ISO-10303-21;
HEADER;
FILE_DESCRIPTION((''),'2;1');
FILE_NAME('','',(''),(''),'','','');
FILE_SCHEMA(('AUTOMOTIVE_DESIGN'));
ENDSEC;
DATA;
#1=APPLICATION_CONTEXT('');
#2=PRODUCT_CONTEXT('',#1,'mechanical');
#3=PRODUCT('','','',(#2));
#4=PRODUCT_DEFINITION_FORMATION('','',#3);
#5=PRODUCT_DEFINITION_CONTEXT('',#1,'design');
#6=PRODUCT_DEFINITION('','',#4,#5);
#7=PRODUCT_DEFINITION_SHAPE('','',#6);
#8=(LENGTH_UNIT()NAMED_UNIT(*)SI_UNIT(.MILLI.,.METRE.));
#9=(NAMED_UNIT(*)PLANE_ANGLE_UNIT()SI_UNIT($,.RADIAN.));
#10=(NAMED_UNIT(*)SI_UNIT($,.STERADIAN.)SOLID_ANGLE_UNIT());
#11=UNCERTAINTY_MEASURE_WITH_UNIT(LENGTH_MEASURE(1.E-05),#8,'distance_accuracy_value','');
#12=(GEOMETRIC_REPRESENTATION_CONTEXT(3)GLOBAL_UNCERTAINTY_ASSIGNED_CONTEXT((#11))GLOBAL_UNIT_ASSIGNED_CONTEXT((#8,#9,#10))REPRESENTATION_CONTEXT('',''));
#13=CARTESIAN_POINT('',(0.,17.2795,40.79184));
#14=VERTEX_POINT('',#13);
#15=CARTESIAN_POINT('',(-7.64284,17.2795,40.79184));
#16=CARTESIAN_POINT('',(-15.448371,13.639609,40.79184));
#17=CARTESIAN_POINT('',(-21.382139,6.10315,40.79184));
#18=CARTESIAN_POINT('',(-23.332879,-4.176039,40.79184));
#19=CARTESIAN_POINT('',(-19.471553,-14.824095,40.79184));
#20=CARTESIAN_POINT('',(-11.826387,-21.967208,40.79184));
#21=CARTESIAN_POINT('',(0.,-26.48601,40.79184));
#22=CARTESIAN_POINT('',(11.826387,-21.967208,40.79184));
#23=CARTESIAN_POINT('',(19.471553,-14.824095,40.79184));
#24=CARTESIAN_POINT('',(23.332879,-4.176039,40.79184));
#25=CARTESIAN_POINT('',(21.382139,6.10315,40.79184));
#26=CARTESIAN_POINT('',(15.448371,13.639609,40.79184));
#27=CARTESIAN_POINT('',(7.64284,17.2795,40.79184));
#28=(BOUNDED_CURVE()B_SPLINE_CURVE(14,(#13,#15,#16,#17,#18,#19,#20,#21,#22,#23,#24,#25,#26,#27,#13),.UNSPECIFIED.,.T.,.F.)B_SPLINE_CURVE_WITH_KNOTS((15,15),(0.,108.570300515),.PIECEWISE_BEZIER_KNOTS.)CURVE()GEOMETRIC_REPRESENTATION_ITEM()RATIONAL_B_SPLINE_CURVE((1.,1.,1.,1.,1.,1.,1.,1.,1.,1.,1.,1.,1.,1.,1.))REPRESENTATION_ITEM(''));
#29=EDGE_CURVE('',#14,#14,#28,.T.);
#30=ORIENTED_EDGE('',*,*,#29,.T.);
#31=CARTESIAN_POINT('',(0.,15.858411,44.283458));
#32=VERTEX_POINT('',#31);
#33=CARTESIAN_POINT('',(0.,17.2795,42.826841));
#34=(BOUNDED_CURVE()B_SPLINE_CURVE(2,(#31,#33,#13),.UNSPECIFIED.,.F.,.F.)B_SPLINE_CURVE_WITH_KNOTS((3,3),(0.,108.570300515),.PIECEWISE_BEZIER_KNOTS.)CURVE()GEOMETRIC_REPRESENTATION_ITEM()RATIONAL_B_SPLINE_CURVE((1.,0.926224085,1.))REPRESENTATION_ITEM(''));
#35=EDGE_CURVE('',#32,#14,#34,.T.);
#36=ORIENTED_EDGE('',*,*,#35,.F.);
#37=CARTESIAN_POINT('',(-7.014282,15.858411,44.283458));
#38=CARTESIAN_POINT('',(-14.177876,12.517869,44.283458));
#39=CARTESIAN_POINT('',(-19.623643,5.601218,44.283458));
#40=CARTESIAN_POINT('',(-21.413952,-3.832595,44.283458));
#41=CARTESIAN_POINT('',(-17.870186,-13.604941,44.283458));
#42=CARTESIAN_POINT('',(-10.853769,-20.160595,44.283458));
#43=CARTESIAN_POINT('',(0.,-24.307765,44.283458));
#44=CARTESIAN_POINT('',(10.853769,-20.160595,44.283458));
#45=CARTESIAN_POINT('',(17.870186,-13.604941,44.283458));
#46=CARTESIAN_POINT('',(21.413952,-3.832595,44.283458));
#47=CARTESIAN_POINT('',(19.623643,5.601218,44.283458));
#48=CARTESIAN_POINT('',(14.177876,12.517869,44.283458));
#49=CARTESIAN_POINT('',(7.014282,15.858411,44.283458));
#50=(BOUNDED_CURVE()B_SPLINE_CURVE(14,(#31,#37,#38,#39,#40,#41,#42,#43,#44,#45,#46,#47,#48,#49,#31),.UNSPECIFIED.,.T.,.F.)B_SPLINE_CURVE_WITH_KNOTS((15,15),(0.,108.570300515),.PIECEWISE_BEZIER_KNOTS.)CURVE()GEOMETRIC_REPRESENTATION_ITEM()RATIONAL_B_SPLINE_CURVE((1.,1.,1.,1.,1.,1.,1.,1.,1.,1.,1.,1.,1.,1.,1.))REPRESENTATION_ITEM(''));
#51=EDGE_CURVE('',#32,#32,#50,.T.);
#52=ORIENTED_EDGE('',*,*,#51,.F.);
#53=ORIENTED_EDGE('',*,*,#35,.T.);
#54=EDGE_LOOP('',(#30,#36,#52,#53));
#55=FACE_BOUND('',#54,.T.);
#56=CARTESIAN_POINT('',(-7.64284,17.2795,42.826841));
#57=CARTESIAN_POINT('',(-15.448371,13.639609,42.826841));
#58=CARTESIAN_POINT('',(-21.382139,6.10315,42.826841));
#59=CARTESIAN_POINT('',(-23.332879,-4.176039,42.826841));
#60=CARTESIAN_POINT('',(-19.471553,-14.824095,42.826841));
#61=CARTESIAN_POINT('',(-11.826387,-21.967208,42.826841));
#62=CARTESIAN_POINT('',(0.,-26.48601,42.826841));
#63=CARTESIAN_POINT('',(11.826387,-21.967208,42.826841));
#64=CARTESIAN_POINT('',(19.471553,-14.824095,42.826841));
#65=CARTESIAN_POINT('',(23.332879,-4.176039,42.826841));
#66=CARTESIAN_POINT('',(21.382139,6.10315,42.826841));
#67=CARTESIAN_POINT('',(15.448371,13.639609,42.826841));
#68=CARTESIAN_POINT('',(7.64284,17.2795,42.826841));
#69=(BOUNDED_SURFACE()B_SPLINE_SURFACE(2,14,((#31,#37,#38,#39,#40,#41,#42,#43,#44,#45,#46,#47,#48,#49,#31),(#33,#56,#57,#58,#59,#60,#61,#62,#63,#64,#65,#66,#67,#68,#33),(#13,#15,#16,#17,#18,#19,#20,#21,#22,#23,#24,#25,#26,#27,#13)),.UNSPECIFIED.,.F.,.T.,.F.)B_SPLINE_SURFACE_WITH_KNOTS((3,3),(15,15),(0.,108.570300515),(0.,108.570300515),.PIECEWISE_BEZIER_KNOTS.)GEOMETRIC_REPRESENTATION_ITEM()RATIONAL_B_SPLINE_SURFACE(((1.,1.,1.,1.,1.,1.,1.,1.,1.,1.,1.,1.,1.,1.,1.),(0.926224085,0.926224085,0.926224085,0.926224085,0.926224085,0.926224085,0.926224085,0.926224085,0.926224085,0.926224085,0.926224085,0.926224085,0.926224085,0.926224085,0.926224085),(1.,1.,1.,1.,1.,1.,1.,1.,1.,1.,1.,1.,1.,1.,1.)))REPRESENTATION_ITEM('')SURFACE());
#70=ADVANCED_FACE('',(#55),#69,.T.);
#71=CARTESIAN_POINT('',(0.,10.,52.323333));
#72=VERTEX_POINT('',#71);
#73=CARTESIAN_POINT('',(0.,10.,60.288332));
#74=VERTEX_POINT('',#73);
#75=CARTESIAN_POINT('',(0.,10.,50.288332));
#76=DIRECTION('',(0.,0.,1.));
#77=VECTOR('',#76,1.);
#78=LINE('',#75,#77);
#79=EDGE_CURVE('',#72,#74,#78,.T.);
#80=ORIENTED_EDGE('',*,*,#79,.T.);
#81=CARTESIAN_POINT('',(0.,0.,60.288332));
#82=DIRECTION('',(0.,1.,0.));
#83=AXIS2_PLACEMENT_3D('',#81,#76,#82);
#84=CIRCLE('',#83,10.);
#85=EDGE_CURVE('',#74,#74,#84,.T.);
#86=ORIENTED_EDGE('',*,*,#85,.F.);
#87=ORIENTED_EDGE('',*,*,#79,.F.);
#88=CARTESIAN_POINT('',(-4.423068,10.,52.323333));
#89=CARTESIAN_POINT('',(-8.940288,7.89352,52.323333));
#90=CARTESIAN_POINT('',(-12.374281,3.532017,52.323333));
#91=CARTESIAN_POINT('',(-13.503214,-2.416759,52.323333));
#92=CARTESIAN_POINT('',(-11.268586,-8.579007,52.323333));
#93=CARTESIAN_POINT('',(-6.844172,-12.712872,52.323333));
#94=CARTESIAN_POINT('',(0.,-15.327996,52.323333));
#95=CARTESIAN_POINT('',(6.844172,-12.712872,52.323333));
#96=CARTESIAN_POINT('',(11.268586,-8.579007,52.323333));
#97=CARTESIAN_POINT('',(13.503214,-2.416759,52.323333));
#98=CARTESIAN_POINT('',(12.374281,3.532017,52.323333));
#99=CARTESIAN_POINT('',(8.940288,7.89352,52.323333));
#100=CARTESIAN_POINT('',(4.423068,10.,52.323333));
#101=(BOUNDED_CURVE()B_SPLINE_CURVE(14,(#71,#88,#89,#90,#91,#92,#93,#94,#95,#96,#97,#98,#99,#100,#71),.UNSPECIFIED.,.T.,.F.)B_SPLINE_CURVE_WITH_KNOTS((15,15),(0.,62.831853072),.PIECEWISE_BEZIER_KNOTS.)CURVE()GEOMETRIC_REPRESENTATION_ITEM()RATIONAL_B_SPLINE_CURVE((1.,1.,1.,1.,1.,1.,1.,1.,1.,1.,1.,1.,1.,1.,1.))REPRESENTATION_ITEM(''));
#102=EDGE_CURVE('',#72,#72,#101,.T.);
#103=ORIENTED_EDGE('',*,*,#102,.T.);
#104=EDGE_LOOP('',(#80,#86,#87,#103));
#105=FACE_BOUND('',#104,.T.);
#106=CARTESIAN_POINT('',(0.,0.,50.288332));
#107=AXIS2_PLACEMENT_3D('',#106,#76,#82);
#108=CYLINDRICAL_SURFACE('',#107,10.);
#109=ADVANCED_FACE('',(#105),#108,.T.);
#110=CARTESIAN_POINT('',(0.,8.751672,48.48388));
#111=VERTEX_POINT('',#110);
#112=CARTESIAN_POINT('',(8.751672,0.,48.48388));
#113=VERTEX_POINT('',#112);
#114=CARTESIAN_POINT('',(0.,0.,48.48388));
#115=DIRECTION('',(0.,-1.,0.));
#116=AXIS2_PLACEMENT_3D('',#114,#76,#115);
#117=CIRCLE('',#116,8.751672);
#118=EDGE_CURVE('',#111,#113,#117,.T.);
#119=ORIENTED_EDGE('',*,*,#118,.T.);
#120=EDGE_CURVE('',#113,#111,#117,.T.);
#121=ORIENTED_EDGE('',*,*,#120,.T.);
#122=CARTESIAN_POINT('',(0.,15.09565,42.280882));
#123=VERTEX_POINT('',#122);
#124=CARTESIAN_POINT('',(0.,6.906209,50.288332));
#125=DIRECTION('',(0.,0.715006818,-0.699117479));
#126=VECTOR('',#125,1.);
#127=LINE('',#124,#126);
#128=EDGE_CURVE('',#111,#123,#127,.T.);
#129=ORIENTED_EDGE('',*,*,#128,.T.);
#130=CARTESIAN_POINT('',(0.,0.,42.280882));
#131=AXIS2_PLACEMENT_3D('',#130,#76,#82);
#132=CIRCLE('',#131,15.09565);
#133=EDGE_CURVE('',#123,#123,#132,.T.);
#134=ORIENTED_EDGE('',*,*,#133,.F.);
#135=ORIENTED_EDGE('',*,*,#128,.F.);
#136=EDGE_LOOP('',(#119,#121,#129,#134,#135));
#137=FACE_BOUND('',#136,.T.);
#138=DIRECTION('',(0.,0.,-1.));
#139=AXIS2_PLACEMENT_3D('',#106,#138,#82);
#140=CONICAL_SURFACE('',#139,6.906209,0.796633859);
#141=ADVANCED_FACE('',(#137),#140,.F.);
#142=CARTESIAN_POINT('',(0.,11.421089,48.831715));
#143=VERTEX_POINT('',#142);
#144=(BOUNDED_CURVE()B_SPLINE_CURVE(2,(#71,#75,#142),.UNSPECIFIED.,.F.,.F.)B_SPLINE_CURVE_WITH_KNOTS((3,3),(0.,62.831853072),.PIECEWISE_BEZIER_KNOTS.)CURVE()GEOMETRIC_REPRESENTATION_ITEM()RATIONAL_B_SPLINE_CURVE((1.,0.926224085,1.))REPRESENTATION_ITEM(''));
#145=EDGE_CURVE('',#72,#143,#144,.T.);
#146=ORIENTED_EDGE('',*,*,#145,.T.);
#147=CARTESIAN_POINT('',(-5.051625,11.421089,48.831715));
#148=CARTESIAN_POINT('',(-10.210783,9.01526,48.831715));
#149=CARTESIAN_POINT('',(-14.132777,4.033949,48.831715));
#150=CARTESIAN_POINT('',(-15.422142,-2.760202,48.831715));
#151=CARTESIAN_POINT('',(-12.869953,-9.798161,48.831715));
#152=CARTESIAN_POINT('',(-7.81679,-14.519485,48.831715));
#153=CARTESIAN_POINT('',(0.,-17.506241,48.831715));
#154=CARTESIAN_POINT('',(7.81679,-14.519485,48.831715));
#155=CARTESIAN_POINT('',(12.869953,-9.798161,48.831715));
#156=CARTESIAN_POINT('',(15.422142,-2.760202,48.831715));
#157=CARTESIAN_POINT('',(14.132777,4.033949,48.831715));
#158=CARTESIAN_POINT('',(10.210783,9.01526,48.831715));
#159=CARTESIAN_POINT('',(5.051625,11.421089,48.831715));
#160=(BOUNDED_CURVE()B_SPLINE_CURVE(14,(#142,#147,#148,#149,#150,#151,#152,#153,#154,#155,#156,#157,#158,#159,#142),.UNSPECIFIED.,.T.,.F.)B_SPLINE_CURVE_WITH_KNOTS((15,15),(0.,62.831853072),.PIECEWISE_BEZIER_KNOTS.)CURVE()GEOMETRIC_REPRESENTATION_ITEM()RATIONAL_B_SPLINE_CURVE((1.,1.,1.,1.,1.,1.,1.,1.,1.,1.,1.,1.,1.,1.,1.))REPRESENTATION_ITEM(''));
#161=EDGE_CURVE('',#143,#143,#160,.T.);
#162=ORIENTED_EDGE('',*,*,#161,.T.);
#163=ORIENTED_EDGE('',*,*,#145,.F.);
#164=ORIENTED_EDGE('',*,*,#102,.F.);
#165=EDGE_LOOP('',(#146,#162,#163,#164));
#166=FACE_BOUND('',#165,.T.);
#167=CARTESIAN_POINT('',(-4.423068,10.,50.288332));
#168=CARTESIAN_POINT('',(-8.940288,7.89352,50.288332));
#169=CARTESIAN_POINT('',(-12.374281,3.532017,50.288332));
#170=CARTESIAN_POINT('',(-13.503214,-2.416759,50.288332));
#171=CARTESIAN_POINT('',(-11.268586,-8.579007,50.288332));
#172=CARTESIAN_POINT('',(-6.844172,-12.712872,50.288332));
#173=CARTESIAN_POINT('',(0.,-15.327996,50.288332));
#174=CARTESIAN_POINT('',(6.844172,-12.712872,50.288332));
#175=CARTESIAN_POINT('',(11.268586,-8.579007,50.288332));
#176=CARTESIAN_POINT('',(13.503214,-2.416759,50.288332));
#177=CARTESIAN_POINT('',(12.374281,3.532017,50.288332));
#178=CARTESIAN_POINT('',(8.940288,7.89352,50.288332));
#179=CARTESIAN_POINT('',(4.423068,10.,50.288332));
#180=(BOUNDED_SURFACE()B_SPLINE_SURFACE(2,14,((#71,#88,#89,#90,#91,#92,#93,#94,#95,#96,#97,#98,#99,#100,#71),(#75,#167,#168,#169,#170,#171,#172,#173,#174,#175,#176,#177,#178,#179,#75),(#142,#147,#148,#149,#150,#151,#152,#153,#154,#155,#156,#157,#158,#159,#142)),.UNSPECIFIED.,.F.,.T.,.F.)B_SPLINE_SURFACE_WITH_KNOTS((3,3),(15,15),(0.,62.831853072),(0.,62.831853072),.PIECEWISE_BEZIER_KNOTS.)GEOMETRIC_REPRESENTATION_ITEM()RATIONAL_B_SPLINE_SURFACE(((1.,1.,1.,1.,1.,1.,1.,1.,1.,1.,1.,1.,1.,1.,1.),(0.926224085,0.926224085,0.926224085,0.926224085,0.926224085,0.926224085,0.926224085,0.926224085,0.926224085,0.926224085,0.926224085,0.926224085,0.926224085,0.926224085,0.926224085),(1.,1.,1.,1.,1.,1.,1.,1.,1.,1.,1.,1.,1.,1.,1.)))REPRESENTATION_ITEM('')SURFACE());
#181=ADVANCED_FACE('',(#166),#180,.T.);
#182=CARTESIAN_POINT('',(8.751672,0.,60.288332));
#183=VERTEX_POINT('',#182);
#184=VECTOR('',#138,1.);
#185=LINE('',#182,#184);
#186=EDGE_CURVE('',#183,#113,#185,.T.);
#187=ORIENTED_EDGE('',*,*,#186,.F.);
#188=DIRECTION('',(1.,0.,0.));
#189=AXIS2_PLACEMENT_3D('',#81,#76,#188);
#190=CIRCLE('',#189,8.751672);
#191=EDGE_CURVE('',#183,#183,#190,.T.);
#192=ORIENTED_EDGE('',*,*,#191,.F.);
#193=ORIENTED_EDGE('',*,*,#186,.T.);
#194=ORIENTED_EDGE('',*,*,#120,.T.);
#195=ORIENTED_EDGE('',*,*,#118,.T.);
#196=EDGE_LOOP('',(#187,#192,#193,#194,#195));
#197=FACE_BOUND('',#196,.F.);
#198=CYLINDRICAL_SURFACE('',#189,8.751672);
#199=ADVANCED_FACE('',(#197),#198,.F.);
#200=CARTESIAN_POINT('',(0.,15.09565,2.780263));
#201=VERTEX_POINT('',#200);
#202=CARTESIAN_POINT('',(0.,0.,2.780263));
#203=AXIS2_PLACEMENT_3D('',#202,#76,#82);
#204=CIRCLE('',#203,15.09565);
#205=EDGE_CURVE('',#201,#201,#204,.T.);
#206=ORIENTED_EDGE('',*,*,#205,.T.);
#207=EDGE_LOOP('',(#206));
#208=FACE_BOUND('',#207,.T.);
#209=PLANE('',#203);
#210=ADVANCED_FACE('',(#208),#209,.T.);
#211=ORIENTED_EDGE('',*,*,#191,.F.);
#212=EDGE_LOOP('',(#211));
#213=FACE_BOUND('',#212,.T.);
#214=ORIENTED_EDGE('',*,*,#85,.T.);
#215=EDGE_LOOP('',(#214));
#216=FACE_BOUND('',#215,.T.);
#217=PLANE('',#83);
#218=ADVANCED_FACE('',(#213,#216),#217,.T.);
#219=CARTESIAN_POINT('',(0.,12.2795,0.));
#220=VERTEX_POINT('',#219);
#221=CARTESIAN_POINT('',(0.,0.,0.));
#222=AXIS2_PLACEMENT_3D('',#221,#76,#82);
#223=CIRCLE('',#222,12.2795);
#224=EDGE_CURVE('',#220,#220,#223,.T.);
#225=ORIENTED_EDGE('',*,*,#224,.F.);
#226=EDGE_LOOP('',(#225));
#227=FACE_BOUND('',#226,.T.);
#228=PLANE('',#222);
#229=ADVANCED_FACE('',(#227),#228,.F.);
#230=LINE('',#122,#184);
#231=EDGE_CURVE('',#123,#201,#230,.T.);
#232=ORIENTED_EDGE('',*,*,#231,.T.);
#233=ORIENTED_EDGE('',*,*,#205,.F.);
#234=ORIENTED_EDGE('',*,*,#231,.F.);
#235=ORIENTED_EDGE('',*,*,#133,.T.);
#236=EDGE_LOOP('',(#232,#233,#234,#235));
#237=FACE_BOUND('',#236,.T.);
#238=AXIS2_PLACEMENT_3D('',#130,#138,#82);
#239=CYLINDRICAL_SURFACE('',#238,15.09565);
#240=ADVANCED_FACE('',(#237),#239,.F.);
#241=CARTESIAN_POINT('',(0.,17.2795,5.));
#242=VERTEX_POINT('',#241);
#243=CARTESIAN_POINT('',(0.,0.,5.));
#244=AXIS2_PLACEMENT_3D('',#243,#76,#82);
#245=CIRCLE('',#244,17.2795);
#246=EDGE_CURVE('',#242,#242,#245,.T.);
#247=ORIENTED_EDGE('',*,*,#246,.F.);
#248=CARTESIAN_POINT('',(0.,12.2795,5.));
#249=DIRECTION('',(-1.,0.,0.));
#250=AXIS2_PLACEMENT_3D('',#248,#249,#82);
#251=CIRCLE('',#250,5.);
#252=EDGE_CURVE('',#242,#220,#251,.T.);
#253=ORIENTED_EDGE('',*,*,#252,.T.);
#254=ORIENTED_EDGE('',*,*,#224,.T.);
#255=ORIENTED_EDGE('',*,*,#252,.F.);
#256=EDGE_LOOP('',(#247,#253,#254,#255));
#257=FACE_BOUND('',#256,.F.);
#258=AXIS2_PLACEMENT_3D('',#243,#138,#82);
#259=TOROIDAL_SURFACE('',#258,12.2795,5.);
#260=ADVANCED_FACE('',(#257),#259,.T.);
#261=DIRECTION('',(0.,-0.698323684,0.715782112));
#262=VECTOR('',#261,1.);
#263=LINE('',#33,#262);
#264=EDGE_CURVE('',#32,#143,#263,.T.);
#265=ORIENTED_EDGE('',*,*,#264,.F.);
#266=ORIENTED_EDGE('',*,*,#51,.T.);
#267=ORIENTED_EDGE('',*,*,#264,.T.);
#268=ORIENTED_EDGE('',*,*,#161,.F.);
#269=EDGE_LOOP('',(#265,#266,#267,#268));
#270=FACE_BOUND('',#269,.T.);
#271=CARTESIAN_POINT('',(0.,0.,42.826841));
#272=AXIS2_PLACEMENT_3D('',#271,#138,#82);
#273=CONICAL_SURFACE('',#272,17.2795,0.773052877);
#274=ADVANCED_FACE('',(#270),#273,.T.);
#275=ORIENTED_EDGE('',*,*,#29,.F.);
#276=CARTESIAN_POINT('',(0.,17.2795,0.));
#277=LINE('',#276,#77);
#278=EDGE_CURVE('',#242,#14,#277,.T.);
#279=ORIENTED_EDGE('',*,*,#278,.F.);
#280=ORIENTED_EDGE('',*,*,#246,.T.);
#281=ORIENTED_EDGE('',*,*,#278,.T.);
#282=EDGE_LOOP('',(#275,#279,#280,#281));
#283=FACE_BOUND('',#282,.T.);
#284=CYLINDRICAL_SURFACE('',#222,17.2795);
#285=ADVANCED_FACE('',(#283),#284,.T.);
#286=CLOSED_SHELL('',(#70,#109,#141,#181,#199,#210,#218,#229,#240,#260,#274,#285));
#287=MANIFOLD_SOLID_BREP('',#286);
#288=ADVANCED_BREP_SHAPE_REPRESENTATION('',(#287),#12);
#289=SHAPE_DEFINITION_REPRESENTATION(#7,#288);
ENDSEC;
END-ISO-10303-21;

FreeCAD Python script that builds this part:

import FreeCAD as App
import Part
import Sketcher


def edges_at(feature, points):
    """Names of the edges that pass closest to the given points."""
    edges = feature.Shape.Edges
    near = lambda p: min(range(len(edges)), key=lambda i: edges[i].distToShape(Part.Vertex(*p))[0])
    return sorted({f"Edge{near(p) + 1}" for p in points})


def add_polygon(sketch, points):
    """Adds a closed chain of lines whose ends are joined by coincident constraints."""
    first, n = sketch.GeometryCount, len(points)
    for a, b in zip(points, points[1:] + points[:1]):
        sketch.addGeometry(Part.LineSegment(App.Vector(*a, 0), App.Vector(*b, 0)), False)
    for i in range(n):
        sketch.addConstraint(Sketcher.Constraint("Coincident", first + i, 2, first + (i + 1) % n, 1))

doc = App.newDocument("Part")
params = doc.addObject("Spreadsheet::Sheet", "Params")
for row, (alias, value) in enumerate([
    ("sketch1_width", "10 mm"),
    ("revolution_angle", "360 deg"),
    ("pocket1_length", "25 mm"),
    ("fillet_radius", "5 mm"),
], start=1):
    params.set(f"A{row}", alias)
    params.set(f"B{row}", "=" + value)
    params.setAlias(f"B{row}", alias)

body = doc.addObject("PartDesign::Body", "Body")

# Sketch on YZ plane
sketch1 = doc.addObject("Sketcher::SketchObject", "Sketch")
body.addObject(sketch1)
sketch1.AttachmentSupport = (doc.YZ_Plane, [""])
sketch1.MapMode = "FlatFace"
add_polygon(sketch1, [(10, 60.3), (0, 60.3), (0, 57.7), (6.9, 57.7), (6.9, 50.3), (15.1, 42.3), (15.1, 2.8), (0, 2.8), (0, 0), (17.3, 0), (17.3, 42.8), (10, 50.3)])  # lines 0-11
sketch1.addConstraint([
    Sketcher.Constraint("Horizontal", 0),
    Sketcher.Constraint("Vertical", 1),
    Sketcher.Constraint("Horizontal", 2),
    Sketcher.Constraint("Vertical", 3),
    Sketcher.Constraint("Vertical", 5),
    Sketcher.Constraint("Horizontal", 6),
    Sketcher.Constraint("Vertical", 7),
    Sketcher.Constraint("Horizontal", 8),
    Sketcher.Constraint("Vertical", 9),
    Sketcher.Constraint("Vertical", 11),
    Sketcher.Constraint("Coincident", 7, 2, -1, 1),
    Sketcher.Constraint("PointOnObject", 0, 2, -2),
    Sketcher.Constraint("Horizontal", 3, 2, 10, 2),
    Sketcher.Constraint("Equal", 0, 11),
    Sketcher.Constraint("DistanceX", 0, 2, 0, 1, 10.0),
    Sketcher.Constraint("DistanceX", 8, 1, 8, 2, 17.2795),
    Sketcher.Constraint("DistanceX", 2, 1, 2, 2, 6.906209),
    Sketcher.Constraint("DistanceX", 6, 2, 6, 1, 15.09565),
    Sketcher.Constraint("DistanceY", 1, 2, 1, 1, 2.547822),
    Sketcher.Constraint("DistanceY", 5, 2, 5, 1, 39.500619),
    Sketcher.Constraint("DistanceY", 9, 1, 9, 2, 42.826841),
    Sketcher.Constraint("Distance", 10, 10.424249),
    Sketcher.Constraint("DistanceY", 7, 2, 7, 1, 2.780263),
])
sketch1.setExpression("Constraints[26]", "Params.sketch1_width")
revolution = doc.addObject("PartDesign::Revolution", "Revolution")
body.addObject(revolution)
revolution.Profile = sketch1
revolution.ReferenceAxis = (sketch1, ["V_Axis"])
revolution.setExpression("Angle", "Params.revolution_angle")

# Sketch on XY plane
sketch2 = doc.addObject("Sketcher::SketchObject", "Sketch001")
body.addObject(sketch2)
sketch2.AttachmentSupport = (doc.XY_Plane, [""])
sketch2.MapMode = "FlatFace"
sketch2.AttachmentOffset = App.Placement(App.Vector(0, 0, 60.288332), App.Rotation())
sketch2.addGeometry(Part.Circle(App.Vector(0, 0, 0), App.Vector(0, 0, 1), 9), False)
sketch2.addConstraint([
    Sketcher.Constraint("Coincident", 0, 3, -1, 1),
    Sketcher.Constraint("Diameter", 0, 17.503344),
])
pocket1 = doc.addObject("PartDesign::Pocket", "Pocket")
body.addObject(pocket1)
pocket1.Profile = sketch2
pocket1.setExpression("Length", "Params.pocket1_length")
doc.recompute()

fillet = doc.addObject("PartDesign::Fillet", "Fillet")
body.addObject(fillet)
fillet.Base = (pocket1, edges_at(pocket1, [(0, -10, 50.288), (0, -17.279, 42.827), (0, -17.279, 0)]))
fillet.setExpression("Radius", "Params.fillet_radius")

doc.recompute()
